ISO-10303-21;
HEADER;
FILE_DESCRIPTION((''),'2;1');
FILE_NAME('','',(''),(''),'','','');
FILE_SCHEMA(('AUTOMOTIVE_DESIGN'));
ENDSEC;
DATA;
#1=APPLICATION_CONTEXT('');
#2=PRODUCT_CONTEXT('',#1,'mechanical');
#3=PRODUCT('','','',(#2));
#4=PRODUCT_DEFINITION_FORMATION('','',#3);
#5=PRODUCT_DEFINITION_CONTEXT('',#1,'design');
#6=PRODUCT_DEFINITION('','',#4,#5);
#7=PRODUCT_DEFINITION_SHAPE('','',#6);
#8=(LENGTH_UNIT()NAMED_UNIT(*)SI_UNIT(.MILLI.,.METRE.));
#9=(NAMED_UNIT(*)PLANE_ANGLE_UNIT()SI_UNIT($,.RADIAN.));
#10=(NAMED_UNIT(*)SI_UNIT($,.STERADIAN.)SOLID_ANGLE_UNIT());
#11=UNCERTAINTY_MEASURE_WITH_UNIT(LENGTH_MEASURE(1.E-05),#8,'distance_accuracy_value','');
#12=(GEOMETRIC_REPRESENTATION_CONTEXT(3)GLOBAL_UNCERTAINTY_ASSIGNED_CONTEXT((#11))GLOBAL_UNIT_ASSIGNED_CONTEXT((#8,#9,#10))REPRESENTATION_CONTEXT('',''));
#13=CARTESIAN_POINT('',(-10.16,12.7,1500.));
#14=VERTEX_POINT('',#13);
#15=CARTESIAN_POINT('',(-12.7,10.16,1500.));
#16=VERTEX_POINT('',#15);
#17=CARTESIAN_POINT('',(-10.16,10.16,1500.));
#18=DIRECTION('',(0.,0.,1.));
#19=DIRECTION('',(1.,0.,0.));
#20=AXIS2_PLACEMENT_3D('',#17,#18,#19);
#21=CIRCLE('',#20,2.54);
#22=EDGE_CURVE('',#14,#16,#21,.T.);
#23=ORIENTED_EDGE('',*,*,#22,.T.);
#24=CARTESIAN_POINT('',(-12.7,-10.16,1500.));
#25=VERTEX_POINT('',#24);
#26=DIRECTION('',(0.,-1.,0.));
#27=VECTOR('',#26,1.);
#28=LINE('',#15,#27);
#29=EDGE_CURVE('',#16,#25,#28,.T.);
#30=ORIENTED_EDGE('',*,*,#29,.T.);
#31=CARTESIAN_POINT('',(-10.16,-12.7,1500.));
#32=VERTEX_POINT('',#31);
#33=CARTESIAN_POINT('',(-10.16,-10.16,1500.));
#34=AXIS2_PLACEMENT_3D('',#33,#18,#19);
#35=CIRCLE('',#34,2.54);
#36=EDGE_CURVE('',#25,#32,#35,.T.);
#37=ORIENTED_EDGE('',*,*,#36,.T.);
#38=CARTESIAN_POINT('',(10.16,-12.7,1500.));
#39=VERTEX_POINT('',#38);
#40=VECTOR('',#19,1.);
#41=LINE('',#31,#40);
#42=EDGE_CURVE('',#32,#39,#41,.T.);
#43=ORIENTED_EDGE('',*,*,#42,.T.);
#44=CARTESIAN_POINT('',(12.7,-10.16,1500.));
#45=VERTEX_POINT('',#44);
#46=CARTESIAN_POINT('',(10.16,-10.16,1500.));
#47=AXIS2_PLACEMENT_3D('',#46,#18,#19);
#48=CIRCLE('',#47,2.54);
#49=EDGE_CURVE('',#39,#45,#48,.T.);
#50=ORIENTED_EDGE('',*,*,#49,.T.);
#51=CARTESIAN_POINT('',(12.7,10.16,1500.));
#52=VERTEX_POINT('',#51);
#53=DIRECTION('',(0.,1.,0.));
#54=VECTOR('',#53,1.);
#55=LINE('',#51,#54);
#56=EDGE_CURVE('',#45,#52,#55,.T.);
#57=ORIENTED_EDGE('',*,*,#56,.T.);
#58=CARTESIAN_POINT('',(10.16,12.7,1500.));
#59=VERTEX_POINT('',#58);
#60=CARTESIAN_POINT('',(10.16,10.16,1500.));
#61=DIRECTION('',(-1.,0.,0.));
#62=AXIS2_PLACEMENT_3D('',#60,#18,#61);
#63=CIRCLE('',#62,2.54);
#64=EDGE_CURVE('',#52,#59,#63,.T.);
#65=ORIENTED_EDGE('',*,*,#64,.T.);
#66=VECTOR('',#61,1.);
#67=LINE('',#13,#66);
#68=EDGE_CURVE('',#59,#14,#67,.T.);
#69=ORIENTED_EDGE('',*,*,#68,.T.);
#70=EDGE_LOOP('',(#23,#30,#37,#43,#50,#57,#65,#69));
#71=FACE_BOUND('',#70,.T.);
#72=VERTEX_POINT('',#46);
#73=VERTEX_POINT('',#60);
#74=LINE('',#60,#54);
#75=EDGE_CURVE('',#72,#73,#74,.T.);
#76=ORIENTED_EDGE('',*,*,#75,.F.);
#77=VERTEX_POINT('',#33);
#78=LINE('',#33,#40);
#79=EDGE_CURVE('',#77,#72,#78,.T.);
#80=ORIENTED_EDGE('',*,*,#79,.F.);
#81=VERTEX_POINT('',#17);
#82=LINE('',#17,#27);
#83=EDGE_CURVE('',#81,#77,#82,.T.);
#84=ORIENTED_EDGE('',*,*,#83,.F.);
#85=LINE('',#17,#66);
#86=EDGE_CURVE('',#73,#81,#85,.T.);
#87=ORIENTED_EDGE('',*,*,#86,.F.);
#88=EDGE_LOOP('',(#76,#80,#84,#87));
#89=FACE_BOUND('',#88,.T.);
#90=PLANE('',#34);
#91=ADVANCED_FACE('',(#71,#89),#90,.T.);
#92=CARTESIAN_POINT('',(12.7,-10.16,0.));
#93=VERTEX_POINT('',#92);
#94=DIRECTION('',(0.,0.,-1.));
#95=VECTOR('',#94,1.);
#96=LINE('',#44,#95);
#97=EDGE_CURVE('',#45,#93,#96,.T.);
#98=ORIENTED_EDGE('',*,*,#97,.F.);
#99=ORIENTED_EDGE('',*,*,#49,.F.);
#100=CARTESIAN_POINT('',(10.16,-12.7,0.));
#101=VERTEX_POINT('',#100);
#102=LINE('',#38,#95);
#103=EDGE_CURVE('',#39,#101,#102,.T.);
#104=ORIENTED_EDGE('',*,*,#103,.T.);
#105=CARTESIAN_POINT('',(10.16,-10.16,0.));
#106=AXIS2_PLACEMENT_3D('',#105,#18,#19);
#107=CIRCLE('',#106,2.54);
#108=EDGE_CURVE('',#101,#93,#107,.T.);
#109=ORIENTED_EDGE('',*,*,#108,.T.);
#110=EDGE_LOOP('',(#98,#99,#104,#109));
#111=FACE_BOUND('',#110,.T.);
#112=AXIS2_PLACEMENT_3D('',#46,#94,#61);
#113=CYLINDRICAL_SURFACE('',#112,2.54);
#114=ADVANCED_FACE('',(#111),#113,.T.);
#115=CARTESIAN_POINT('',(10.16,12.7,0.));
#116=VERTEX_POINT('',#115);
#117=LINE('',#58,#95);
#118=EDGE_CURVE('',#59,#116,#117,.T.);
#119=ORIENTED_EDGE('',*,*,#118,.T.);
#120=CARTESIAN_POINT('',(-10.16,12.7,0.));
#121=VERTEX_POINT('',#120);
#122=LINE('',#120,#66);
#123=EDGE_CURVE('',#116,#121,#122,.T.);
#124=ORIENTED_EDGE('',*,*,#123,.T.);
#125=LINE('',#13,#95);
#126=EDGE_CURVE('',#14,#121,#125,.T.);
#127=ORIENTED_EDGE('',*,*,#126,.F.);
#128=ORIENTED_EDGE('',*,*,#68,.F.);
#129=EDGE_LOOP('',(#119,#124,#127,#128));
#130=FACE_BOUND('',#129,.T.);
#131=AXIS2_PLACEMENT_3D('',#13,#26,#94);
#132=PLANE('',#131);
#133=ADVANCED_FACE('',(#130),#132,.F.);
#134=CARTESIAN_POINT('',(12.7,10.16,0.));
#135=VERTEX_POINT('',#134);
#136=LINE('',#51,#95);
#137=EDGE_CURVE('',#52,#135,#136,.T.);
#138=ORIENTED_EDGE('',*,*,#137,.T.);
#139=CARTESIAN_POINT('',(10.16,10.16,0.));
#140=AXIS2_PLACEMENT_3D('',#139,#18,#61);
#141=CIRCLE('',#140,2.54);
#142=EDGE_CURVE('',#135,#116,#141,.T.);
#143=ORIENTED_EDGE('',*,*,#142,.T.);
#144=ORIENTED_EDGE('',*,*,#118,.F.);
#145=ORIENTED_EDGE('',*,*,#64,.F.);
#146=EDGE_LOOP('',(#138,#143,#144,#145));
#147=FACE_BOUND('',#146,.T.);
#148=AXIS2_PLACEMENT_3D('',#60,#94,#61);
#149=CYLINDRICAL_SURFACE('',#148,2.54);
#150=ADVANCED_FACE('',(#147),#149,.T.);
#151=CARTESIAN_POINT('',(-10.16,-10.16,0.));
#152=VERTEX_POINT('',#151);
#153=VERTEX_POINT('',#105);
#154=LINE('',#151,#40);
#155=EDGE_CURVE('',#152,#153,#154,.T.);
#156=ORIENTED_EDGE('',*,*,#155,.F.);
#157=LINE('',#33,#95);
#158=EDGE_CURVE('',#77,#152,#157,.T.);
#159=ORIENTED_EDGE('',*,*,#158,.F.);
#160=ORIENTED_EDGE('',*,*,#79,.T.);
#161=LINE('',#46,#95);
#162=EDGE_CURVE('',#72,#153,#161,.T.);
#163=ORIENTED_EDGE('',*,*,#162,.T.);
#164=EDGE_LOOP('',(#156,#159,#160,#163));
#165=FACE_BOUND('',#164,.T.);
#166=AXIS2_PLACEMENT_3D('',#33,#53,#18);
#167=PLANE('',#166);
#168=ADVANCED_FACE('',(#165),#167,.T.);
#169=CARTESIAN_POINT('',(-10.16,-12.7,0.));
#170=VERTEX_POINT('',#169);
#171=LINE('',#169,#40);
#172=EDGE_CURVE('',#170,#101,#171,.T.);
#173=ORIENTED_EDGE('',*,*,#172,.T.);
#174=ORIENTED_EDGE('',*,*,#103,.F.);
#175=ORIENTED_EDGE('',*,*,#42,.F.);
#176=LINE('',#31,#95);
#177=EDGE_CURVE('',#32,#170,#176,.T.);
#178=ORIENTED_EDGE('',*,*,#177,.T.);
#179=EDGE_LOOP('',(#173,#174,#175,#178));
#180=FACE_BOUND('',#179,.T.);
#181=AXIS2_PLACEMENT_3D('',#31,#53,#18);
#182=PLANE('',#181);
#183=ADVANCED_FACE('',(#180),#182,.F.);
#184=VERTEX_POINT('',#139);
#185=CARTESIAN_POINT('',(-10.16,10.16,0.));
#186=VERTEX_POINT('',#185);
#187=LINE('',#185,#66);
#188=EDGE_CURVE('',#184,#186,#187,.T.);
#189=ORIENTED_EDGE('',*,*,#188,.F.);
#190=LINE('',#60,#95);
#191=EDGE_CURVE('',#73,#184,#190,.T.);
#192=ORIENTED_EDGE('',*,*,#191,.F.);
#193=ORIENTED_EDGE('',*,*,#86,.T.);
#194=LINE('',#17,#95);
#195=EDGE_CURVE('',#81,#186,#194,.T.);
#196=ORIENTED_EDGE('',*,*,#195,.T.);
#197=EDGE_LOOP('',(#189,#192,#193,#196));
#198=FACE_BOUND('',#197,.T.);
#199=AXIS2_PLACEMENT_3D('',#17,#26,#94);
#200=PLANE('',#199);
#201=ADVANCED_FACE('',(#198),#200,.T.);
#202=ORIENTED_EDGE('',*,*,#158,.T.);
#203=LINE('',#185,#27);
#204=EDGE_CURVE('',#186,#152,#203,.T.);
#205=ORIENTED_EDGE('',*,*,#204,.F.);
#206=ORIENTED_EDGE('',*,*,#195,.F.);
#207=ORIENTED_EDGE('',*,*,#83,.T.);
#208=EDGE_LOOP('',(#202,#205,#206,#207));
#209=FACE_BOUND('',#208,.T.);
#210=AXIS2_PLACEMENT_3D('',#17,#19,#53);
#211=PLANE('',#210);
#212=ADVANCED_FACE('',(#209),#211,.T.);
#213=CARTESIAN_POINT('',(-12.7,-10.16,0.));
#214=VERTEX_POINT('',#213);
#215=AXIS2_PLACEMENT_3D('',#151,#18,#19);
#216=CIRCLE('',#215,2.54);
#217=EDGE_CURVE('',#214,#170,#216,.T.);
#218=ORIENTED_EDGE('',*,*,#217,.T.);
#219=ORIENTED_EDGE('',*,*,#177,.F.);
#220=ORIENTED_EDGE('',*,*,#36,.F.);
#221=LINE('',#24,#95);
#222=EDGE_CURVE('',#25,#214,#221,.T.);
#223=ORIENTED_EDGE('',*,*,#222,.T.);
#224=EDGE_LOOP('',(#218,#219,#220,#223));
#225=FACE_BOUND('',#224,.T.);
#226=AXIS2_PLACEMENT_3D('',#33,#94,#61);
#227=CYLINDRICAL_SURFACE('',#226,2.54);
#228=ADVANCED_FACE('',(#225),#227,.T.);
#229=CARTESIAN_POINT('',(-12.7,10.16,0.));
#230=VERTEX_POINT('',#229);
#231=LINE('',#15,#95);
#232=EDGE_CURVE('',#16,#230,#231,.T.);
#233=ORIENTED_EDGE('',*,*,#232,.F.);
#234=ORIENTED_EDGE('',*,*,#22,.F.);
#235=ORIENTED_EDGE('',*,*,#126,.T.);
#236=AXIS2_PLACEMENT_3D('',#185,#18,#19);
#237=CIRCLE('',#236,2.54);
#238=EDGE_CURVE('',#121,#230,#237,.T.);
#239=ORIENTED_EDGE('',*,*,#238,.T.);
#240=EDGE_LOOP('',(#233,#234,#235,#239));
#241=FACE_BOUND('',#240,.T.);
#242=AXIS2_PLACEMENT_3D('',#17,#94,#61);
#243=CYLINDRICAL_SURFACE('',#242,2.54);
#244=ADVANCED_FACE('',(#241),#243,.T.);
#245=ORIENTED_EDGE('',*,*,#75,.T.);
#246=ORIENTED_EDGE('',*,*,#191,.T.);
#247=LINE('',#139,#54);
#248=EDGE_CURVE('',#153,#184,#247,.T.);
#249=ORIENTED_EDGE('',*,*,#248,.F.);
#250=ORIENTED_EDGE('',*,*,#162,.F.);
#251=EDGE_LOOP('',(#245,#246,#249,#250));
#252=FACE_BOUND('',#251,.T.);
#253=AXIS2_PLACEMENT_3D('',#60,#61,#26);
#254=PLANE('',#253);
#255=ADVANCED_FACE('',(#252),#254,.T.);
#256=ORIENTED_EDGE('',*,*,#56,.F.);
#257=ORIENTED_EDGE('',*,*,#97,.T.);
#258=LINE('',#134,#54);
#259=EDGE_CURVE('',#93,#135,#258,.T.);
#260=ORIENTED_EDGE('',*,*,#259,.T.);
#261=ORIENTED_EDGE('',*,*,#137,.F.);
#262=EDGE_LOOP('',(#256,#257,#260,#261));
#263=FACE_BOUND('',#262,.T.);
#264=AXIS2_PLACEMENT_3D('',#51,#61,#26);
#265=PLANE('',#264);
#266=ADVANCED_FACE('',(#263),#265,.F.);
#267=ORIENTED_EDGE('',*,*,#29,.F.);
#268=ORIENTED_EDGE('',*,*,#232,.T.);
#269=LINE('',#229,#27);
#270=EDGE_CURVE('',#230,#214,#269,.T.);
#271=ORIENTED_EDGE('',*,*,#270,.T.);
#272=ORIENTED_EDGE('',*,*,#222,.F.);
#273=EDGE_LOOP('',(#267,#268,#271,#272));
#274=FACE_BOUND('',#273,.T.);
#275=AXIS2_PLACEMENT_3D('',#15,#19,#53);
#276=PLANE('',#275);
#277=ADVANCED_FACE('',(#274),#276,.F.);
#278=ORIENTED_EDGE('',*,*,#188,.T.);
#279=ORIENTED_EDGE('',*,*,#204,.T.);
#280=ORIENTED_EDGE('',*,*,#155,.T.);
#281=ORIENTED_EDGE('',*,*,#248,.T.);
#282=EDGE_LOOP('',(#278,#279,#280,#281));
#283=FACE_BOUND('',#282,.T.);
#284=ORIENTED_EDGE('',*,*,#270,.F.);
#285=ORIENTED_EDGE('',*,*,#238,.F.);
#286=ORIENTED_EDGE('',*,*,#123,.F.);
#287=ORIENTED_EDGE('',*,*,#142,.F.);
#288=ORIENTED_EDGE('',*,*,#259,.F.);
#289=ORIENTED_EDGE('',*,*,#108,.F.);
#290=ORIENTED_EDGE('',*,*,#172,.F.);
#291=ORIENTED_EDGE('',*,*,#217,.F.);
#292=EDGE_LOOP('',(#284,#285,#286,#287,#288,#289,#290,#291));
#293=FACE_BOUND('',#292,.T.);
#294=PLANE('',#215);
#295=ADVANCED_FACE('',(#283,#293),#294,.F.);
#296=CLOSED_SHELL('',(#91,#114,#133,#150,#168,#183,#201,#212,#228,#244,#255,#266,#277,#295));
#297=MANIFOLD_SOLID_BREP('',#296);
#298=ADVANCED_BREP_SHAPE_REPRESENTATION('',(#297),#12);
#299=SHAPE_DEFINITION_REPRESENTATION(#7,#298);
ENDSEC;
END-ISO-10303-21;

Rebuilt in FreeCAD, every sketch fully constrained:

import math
import FreeCAD as App
import Part
import Sketcher

V = App.Vector
Q = App.Units.Quantity

doc = App.newDocument("Part")
params = doc.addObject("Spreadsheet::Sheet", "Params")
for row, (alias, value) in enumerate([
    ("sketch1_radius", "0.1 in"),
    ("sketch1_width", "0.8 in"),
    ("pad1_length", "1500 mm"),
], start=1):
    params.set(f"A{row}", alias)
    params.set(f"B{row}", "=" + value)
    params.setAlias(f"B{row}", alias)

body = doc.addObject("PartDesign::Body", "Body")

# Sketch on XY plane
sketch1 = body.newObject("Sketcher::SketchObject", "Sketch")
sketch1.AttachmentSupport = (doc.getObject("XY_Plane"), [""])
sketch1.MapMode = "FlatFace"
sketch1.addGeometry(Part.LineSegment(V(10.2, 12.7, 0), V(-10.2, 12.7, 0)), False)
sketch1.addGeometry(Part.ArcOfCircle(Part.Circle(V(-10.2, 10.2, 0), V(0, 0, 1), 2.5), math.radians(90), math.radians(180)), False)
sketch1.addGeometry(Part.LineSegment(V(-12.7, 10.2, 0), V(-12.7, -10.2, 0)), False)
sketch1.addGeometry(Part.ArcOfCircle(Part.Circle(V(-10.2, -10.2, 0), V(0, 0, 1), 2.5), math.radians(-180), math.radians(-90)), False)
sketch1.addGeometry(Part.LineSegment(V(-10.2, -12.7, 0), V(10.2, -12.7, 0)), False)
sketch1.addGeometry(Part.ArcOfCircle(Part.Circle(V(10.2, -10.2, 0), V(0, 0, 1), 2.5), math.radians(-90), math.radians(0)), False)
sketch1.addGeometry(Part.LineSegment(V(12.7, -10.2, 0), V(12.7, 10.2, 0)), False)
sketch1.addGeometry(Part.ArcOfCircle(Part.Circle(V(10.2, 10.2, 0), V(0, 0, 1), 2.5), math.radians(0), math.radians(90)), False)
sketch1.addGeometry(Part.LineSegment(V(-10.2, -10.2, 0), V(-10.2, 10.2, 0)), False)
sketch1.addGeometry(Part.LineSegment(V(-10.2, 10.2, 0), V(10.2, 10.2, 0)), False)
sketch1.addGeometry(Part.LineSegment(V(10.2, 10.2, 0), V(10.2, -10.2, 0)), False)
sketch1.addGeometry(Part.LineSegment(V(10.2, -10.2, 0), V(-10.2, -10.2, 0)), False)
sketch1.addConstraint(Sketcher.Constraint("Tangent", 0, 2, 1, 1))
sketch1.addConstraint(Sketcher.Constraint("Tangent", 1, 2, 2, 1))
sketch1.addConstraint(Sketcher.Constraint("Tangent", 2, 2, 3, 1))
sketch1.addConstraint(Sketcher.Constraint("Tangent", 3, 2, 4, 1))
sketch1.addConstraint(Sketcher.Constraint("Tangent", 4, 2, 5, 1))
sketch1.addConstraint(Sketcher.Constraint("Tangent", 5, 2, 6, 1))
sketch1.addConstraint(Sketcher.Constraint("Tangent", 6, 2, 7, 1))
sketch1.addConstraint(Sketcher.Constraint("Tangent", 7, 2, 0, 1))
sketch1.addConstraint(Sketcher.Constraint("Coincident", 8, 2, 9, 1))
sketch1.addConstraint(Sketcher.Constraint("Coincident", 9, 2, 10, 1))
sketch1.addConstraint(Sketcher.Constraint("Coincident", 10, 2, 11, 1))
sketch1.addConstraint(Sketcher.Constraint("Coincident", 11, 2, 8, 1))
sketch1.addConstraint(Sketcher.Constraint("Horizontal", 0))
sketch1.addConstraint(Sketcher.Constraint("Vertical", 2))
sketch1.addConstraint(Sketcher.Constraint("Horizontal", 4))
sketch1.addConstraint(Sketcher.Constraint("Vertical", 6))
sketch1.addConstraint(Sketcher.Constraint("Vertical", 8))
sketch1.addConstraint(Sketcher.Constraint("Horizontal", 9))
sketch1.addConstraint(Sketcher.Constraint("Vertical", 10))
sketch1.addConstraint(Sketcher.Constraint("Horizontal", 11))
sketch1.addConstraint(Sketcher.Constraint("Coincident", 8, 2, 1, 3))
sketch1.addConstraint(Sketcher.Constraint("Coincident", 9, 2, 7, 3))
sketch1.addConstraint(Sketcher.Constraint("Coincident", 10, 2, 5, 3))
sketch1.addConstraint(Sketcher.Constraint("Equal", 1, 3))
sketch1.addConstraint(Sketcher.Constraint("Symmetric", 1, 3, 5, 3, -1, 1))
sketch1.addConstraint(Sketcher.Constraint("Equal", 11, 2))
sketch1.addConstraint(Sketcher.Constraint("Radius", 1, Q("0.1 in")))
sketch1.addConstraint(Sketcher.Constraint("DistanceX", 0, 2, 0, 1, Q("0.8 in")))
sketch1.setExpression("Constraints[26]", "Params.sketch1_radius")
sketch1.setExpression("Constraints[27]", "Params.sketch1_width")
pad1 = body.newObject("PartDesign::Pad", "Pad")
pad1.Profile = sketch1
pad1.setExpression("Length", "Params.pad1_length")

doc.recompute()
